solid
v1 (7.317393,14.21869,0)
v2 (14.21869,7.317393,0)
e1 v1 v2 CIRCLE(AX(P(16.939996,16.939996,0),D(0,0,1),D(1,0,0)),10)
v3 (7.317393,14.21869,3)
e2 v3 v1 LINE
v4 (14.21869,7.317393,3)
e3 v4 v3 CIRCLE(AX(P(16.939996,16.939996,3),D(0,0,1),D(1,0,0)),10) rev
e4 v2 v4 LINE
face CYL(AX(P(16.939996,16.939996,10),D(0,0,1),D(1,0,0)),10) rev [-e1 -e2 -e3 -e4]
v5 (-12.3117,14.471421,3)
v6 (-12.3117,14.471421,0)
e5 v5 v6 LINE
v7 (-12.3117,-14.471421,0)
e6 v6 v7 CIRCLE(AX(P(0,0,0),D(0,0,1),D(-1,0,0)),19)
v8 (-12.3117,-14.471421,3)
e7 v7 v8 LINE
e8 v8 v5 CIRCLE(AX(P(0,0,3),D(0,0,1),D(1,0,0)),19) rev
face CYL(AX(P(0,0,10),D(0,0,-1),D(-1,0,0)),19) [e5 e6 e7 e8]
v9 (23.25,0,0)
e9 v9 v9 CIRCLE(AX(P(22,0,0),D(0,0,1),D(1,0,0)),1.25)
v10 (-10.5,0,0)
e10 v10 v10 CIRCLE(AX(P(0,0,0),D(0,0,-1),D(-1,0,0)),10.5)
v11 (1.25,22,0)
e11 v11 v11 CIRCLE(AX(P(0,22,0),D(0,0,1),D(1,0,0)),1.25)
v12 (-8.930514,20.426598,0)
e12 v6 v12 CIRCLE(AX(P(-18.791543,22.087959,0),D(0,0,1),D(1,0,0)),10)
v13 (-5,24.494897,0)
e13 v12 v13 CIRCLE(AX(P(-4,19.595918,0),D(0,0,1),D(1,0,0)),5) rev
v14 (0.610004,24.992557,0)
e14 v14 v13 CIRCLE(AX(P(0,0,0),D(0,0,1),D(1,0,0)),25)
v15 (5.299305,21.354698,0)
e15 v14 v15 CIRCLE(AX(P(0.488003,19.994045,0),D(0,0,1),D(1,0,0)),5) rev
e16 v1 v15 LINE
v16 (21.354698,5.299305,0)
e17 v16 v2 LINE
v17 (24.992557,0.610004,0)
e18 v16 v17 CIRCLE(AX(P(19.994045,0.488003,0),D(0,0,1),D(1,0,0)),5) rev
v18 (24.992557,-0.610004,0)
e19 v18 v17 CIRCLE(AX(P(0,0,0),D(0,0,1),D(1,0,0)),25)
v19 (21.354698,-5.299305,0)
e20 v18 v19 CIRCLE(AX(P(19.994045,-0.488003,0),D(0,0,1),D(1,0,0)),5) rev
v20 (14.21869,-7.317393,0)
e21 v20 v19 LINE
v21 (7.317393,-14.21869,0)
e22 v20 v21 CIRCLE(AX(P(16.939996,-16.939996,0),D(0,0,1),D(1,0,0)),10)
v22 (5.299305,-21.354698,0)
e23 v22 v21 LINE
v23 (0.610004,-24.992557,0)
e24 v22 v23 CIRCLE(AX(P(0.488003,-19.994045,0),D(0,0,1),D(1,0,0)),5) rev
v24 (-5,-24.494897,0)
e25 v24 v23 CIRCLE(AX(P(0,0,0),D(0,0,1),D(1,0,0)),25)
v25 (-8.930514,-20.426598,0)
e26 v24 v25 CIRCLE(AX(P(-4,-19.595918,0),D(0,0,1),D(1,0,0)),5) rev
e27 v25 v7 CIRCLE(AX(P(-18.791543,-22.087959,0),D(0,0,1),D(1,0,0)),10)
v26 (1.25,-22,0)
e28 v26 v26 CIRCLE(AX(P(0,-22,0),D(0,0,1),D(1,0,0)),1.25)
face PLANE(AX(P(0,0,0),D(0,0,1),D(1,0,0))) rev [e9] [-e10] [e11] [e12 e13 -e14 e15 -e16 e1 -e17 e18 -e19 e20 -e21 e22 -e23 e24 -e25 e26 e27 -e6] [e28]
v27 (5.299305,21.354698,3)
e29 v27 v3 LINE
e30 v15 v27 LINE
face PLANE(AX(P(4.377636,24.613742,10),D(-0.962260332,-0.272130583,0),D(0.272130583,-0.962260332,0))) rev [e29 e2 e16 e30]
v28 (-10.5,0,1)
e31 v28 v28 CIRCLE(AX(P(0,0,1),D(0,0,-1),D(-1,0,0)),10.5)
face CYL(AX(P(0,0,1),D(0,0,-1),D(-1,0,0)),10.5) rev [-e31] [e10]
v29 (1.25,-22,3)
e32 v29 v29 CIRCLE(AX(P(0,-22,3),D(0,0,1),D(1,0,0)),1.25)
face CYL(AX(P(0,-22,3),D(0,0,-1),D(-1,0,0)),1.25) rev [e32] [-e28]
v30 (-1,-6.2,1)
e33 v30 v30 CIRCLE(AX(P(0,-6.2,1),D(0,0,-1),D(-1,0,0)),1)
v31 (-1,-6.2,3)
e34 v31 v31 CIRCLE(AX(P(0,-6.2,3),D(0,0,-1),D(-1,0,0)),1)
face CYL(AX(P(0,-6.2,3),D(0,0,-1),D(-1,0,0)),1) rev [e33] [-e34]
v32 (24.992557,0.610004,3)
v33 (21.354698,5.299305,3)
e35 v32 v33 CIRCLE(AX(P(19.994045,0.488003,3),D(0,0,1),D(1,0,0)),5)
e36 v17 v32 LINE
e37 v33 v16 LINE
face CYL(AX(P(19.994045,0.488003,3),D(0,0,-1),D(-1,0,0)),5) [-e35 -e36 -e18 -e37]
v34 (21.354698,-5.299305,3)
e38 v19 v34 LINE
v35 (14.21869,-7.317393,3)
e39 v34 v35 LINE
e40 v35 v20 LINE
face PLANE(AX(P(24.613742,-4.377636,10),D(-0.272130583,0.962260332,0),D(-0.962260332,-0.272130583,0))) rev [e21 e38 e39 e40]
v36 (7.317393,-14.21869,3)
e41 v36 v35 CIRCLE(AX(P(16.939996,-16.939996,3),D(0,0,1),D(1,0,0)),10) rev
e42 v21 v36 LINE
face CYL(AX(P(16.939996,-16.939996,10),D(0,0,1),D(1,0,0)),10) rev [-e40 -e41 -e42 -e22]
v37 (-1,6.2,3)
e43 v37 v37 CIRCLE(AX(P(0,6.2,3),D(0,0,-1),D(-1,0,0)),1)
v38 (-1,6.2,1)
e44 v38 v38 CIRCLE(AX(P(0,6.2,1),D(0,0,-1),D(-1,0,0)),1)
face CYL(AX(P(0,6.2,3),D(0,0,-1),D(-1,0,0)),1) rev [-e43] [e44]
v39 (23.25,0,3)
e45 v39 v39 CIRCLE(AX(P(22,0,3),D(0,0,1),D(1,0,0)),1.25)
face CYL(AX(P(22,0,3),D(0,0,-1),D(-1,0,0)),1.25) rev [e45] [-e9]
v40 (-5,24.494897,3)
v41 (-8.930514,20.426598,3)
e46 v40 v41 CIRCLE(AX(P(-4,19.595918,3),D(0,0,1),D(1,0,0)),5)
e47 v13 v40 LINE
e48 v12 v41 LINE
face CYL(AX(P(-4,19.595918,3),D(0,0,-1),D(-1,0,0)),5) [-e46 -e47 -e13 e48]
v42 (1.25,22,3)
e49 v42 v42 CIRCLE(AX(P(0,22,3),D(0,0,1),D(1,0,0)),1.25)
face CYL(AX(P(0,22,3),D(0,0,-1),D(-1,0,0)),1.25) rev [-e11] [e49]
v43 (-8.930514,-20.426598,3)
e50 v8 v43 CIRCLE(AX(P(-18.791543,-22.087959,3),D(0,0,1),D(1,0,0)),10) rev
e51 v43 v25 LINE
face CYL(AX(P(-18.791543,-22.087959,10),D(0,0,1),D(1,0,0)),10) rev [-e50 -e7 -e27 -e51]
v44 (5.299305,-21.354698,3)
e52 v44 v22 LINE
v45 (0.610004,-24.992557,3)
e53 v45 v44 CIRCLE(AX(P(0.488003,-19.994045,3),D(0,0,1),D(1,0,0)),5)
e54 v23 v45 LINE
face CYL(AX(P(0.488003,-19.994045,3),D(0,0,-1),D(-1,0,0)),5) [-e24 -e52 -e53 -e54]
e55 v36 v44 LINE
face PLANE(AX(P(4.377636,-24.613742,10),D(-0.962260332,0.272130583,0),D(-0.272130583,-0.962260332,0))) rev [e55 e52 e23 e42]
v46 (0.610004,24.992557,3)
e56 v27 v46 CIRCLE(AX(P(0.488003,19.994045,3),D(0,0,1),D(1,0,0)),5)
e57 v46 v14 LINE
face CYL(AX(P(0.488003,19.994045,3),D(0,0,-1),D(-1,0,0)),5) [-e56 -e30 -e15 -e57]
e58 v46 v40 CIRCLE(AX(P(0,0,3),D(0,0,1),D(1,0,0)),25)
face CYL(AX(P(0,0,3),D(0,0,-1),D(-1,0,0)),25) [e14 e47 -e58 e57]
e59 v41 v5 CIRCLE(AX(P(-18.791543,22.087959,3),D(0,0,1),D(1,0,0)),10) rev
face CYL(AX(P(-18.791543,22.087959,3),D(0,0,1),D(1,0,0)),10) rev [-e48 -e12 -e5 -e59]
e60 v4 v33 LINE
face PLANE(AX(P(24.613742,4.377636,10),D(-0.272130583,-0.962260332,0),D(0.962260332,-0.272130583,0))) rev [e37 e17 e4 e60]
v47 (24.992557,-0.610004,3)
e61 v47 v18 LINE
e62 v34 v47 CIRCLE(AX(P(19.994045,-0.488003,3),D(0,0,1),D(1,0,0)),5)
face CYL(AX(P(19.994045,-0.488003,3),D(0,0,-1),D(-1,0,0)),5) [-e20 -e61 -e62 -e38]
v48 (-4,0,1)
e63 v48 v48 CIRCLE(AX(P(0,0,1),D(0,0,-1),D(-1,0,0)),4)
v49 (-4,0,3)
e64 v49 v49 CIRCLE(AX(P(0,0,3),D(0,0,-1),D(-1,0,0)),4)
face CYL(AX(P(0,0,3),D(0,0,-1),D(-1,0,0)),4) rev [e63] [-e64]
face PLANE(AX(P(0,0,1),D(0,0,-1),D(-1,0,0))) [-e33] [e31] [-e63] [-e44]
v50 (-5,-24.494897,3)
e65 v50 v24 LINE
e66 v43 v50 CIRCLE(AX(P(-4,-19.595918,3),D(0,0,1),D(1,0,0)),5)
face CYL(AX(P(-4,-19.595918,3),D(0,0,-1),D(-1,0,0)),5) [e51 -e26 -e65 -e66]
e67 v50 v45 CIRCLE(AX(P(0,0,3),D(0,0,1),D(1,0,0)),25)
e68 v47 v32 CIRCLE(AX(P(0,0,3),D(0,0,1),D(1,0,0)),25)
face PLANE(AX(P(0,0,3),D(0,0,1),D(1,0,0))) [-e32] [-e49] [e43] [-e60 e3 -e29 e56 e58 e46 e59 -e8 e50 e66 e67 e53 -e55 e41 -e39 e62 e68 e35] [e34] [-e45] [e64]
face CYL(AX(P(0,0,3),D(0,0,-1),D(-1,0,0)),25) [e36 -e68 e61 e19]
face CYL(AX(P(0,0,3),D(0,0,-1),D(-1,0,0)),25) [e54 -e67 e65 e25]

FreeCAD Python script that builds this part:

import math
import FreeCAD as App
import Part
import Sketcher
from FreeCAD import Vector
Q = App.Units.Quantity


def edges_at(feature, points):
    """Names of the edges that pass closest to the given points."""
    edges = feature.Shape.Edges
    near = lambda p: min(range(len(edges)), key=lambda i: edges[i].distToShape(Part.Vertex(*p))[0])
    return sorted({f"Edge{near(p) + 1}" for p in points})

doc = App.newDocument("Part")
body = doc.addObject("PartDesign::Body", "Body")

# Sketch on XY plane
sketch1 = doc.addObject("Sketcher::SketchObject", "Sketch")
body.addObject(sketch1)
sketch1.AttachmentSupport = (doc.XY_Plane, [""])
sketch1.MapMode = "FlatFace"
sketch1.addGeometry([
    Part.Circle(Vector(0, 0, 0), Vector(0, 0, 1), 25),
    Part.Circle(Vector(0, -22, 0), Vector(0, 0, 1), 1.2),
    Part.Circle(Vector(0, 22, 0), Vector(0, 0, 1), 1.2),
    Part.Circle(Vector(22, 0, 0), Vector(0, 0, 1), 1.2),
], False)
sketch1.addConstraint([
    Sketcher.Constraint("Coincident", 0, 3, -1, 1),
    Sketcher.Constraint("Equal", 1, 2),
    Sketcher.Constraint("Equal", 2, 3),
    Sketcher.Constraint("Symmetric", 1, 3, 2, 3, -1, 1),
    Sketcher.Constraint("PointOnObject", 1, 3, -2),
    Sketcher.Constraint("PointOnObject", 3, 3, -1),
    Sketcher.Constraint("Diameter", 0, Q("50 mm")),
    Sketcher.Constraint("Diameter", 1, Q("2.5 mm")),
    Sketcher.Constraint("DistanceY", 1, 3, -1, 1, Q("22 mm")),
    Sketcher.Constraint("DistanceX", -1, 1, 3, 3, Q("22 mm")),
])
pad1 = doc.addObject("PartDesign::Pad", "Pad")
body.addObject(pad1)
pad1.Profile = sketch1
pad1.Length = 3

# Sketch on XY plane
sketch2 = doc.addObject("Sketcher::SketchObject", "Sketch001")
body.addObject(sketch2)
sketch2.AttachmentSupport = (doc.XY_Plane, [""])
sketch2.MapMode = "FlatFace"
sketch2.addGeometry([
    Part.Circle(Vector(0, 0, 0), Vector(0, 0, 1), 10.5),
    Part.Circle(Vector(0, -6.2, 0), Vector(0, 0, 1), 1),
    Part.Circle(Vector(0, 0, 0), Vector(0, 0, 1), 4),
    Part.Circle(Vector(0, 6.2, 0), Vector(0, 0, 1), 1),
], False)
sketch2.addConstraint([
    Sketcher.Constraint("Coincident", 0, 3, -1, 1),
    Sketcher.Constraint("Coincident", 2, 3, -1, 1),
    Sketcher.Constraint("Equal", 1, 3),
    Sketcher.Constraint("Symmetric", 1, 3, 3, 3, -1, 1),
    Sketcher.Constraint("PointOnObject", 1, 3, -2),
    Sketcher.Constraint("Diameter", 0, Q("21 mm")),
    Sketcher.Constraint("Diameter", 1, Q("2 mm")),
    Sketcher.Constraint("Diameter", 2, Q("8 mm")),
    Sketcher.Constraint("DistanceY", 1, 3, -1, 1, Q("6.2 mm")),
])
pocket1 = doc.addObject("PartDesign::Pocket", "Pocket")
body.addObject(pocket1)
pocket1.Profile = sketch2
pocket1.Length = 1
pocket1.Reversed = True

# Sketch on XY plane
sketch3 = doc.addObject("Sketcher::SketchObject", "Sketch002")
body.addObject(sketch3)
sketch3.AttachmentSupport = (doc.XY_Plane, [""])
sketch3.MapMode = "FlatFace"
sketch3.addGeometry([
    Part.Circle(Vector(0, 6.2, 0), Vector(0, 0, 1), 1),
    Part.Circle(Vector(0, 0, 0), Vector(0, 0, 1), 4),
    Part.Circle(Vector(0, -6.2, 0), Vector(0, 0, 1), 1),
], False)
sketch3.addConstraint([
    Sketcher.Constraint("Coincident", 1, 3, -1, 1),
    Sketcher.Constraint("Equal", 0, 2),
    Sketcher.Constraint("Symmetric", 0, 3, 2, 3, -1, 1),
    Sketcher.Constraint("PointOnObject", 0, 3, -2),
    Sketcher.Constraint("Diameter", 0, Q("2 mm")),
    Sketcher.Constraint("Diameter", 1, Q("8 mm")),
    Sketcher.Constraint("DistanceY", -1, 1, 0, 3, Q("6.2 mm")),
])
pocket2 = doc.addObject("PartDesign::Pocket", "Pocket001")
body.addObject(pocket2)
pocket2.Profile = sketch3
pocket2.Type = "ThroughAll"
pocket2.Midplane = True

# Sketch on XY plane
sketch4 = doc.addObject("Sketcher::SketchObject", "Sketch003")
body.addObject(sketch4)
sketch4.AttachmentSupport = (doc.XY_Plane, [""])
sketch4.MapMode = "FlatFace"
sketch4.addGeometry([
    Part.LineSegment(Vector(25, 4, 0), Vector(9, 9, 0)),  # 0
    Part.LineSegment(Vector(9, 9, 0), Vector(4, 25, 0)),  # 1
    Part.ArcOfCircle(Part.Circle(Vector(0, 0, 0), Vector(0, 0, 1), 25), math.radians(10), math.radians(80)),  # 2
    Part.LineSegment(Vector(4, -25, 0), Vector(9, -9, 0)),  # 3
    Part.LineSegment(Vector(9, -9, 0), Vector(25, -4, 0)),  # 4
    Part.ArcOfCircle(Part.Circle(Vector(0, 0, 0), Vector(0, 0, 1), 25), math.radians(-80), math.radians(-10)),  # 5
    Part.LineSegment(Vector(-9, -17, 0), Vector(-9, -23, 0)),  # 6
    Part.ArcOfCircle(Part.Circle(Vector(0, 0, 0), Vector(0, 0, 1), 25), math.radians(111), math.radians(249)),  # 7
    Part.LineSegment(Vector(-9, 23, 0), Vector(-9, 17, 0)),  # 8
    Part.ArcOfCircle(Part.Circle(Vector(0, 0, 0), Vector(0, 0, 1), 19), math.radians(118), math.radians(242)),  # 9
], False)
sketch4.addConstraint([
    Sketcher.Constraint("Coincident", 0, 2, 1, 1),
    Sketcher.Constraint("Coincident", 1, 2, 2, 2),
    Sketcher.Constraint("Coincident", 2, 1, 0, 1),
    Sketcher.Constraint("Coincident", 3, 2, 4, 1),
    Sketcher.Constraint("Coincident", 4, 2, 5, 2),
    Sketcher.Constraint("Coincident", 5, 1, 3, 1),
    Sketcher.Constraint("Coincident", 6, 2, 7, 2),
    Sketcher.Constraint("Coincident", 7, 1, 8, 1),
    Sketcher.Constraint("Coincident", 8, 2, 9, 1),
    Sketcher.Constraint("Coincident", 9, 2, 6, 1),
    Sketcher.Constraint("Vertical", 6),
    Sketcher.Constraint("Vertical", 8),
    Sketcher.Constraint("Coincident", 2, 3, -1, 1),
    Sketcher.Constraint("Coincident", 5, 3, -1, 1),
    Sketcher.Constraint("Coincident", 7, 3, -1, 1),
    Sketcher.Constraint("Coincident", 9, 3, -1, 1),
    Sketcher.Constraint("Equal", 2, 5),
    Sketcher.Constraint("Equal", 5, 7),
    Sketcher.Constraint("Symmetric", 0, 2, 3, 2, -1),
    Sketcher.Constraint("Perpendicular", 0, 3),
    Sketcher.Constraint("Perpendicular", 1, 4),
    Sketcher.Constraint("Vertical", 2, 1, 4, 2),
    Sketcher.Constraint("Vertical", 6, 2, 7, 1),
    Sketcher.Constraint("Equal", 0, 1),
    Sketcher.Constraint("Radius", 2, Q("25 mm")),
    Sketcher.Constraint("Radius", 9, Q("19 mm")),
    Sketcher.Constraint("DistanceX", 6, 2, -1, 1, Q("9 mm")),
    Sketcher.Constraint("DistanceX", 1, 2, 0, 2, Q("4.461199 mm")),
    Sketcher.Constraint("DistanceY", 3, 2, 0, 2, Q("17.67767 mm")),
])
pocket3 = doc.addObject("PartDesign::Pocket", "Pocket002")
body.addObject(pocket3)
pocket3.Profile = sketch4
pocket3.Length = 10
pocket3.Reversed = True
doc.recompute()

fillet = doc.addObject("PartDesign::Fillet", "Fillet")
body.addObject(fillet)
fillet.Base = (pocket3, edges_at(pocket3, [
    (24.614, 4.378, 1.5),
    (4.378, 24.614, 1.5),
    (4.378, -24.614, 1.5),
    (24.614, -4.378, 1.5),
    (-9, 23.324, 1.5),
    (-9, -23.324, 1.5),
]))
fillet.Radius = 5
doc.recompute()

fillet2 = doc.addObject("PartDesign::Fillet", "Fillet001")
body.addObject(fillet2)
fillet2.Base = (fillet, edges_at(fillet, [
    (8.839, 8.839, 1.5),
    (8.839, -8.839, 1.5),
    (-9, -16.733, 1.5),
    (-9, 16.733, 1.5),
]))
fillet2.Radius = 10

doc.recompute()
